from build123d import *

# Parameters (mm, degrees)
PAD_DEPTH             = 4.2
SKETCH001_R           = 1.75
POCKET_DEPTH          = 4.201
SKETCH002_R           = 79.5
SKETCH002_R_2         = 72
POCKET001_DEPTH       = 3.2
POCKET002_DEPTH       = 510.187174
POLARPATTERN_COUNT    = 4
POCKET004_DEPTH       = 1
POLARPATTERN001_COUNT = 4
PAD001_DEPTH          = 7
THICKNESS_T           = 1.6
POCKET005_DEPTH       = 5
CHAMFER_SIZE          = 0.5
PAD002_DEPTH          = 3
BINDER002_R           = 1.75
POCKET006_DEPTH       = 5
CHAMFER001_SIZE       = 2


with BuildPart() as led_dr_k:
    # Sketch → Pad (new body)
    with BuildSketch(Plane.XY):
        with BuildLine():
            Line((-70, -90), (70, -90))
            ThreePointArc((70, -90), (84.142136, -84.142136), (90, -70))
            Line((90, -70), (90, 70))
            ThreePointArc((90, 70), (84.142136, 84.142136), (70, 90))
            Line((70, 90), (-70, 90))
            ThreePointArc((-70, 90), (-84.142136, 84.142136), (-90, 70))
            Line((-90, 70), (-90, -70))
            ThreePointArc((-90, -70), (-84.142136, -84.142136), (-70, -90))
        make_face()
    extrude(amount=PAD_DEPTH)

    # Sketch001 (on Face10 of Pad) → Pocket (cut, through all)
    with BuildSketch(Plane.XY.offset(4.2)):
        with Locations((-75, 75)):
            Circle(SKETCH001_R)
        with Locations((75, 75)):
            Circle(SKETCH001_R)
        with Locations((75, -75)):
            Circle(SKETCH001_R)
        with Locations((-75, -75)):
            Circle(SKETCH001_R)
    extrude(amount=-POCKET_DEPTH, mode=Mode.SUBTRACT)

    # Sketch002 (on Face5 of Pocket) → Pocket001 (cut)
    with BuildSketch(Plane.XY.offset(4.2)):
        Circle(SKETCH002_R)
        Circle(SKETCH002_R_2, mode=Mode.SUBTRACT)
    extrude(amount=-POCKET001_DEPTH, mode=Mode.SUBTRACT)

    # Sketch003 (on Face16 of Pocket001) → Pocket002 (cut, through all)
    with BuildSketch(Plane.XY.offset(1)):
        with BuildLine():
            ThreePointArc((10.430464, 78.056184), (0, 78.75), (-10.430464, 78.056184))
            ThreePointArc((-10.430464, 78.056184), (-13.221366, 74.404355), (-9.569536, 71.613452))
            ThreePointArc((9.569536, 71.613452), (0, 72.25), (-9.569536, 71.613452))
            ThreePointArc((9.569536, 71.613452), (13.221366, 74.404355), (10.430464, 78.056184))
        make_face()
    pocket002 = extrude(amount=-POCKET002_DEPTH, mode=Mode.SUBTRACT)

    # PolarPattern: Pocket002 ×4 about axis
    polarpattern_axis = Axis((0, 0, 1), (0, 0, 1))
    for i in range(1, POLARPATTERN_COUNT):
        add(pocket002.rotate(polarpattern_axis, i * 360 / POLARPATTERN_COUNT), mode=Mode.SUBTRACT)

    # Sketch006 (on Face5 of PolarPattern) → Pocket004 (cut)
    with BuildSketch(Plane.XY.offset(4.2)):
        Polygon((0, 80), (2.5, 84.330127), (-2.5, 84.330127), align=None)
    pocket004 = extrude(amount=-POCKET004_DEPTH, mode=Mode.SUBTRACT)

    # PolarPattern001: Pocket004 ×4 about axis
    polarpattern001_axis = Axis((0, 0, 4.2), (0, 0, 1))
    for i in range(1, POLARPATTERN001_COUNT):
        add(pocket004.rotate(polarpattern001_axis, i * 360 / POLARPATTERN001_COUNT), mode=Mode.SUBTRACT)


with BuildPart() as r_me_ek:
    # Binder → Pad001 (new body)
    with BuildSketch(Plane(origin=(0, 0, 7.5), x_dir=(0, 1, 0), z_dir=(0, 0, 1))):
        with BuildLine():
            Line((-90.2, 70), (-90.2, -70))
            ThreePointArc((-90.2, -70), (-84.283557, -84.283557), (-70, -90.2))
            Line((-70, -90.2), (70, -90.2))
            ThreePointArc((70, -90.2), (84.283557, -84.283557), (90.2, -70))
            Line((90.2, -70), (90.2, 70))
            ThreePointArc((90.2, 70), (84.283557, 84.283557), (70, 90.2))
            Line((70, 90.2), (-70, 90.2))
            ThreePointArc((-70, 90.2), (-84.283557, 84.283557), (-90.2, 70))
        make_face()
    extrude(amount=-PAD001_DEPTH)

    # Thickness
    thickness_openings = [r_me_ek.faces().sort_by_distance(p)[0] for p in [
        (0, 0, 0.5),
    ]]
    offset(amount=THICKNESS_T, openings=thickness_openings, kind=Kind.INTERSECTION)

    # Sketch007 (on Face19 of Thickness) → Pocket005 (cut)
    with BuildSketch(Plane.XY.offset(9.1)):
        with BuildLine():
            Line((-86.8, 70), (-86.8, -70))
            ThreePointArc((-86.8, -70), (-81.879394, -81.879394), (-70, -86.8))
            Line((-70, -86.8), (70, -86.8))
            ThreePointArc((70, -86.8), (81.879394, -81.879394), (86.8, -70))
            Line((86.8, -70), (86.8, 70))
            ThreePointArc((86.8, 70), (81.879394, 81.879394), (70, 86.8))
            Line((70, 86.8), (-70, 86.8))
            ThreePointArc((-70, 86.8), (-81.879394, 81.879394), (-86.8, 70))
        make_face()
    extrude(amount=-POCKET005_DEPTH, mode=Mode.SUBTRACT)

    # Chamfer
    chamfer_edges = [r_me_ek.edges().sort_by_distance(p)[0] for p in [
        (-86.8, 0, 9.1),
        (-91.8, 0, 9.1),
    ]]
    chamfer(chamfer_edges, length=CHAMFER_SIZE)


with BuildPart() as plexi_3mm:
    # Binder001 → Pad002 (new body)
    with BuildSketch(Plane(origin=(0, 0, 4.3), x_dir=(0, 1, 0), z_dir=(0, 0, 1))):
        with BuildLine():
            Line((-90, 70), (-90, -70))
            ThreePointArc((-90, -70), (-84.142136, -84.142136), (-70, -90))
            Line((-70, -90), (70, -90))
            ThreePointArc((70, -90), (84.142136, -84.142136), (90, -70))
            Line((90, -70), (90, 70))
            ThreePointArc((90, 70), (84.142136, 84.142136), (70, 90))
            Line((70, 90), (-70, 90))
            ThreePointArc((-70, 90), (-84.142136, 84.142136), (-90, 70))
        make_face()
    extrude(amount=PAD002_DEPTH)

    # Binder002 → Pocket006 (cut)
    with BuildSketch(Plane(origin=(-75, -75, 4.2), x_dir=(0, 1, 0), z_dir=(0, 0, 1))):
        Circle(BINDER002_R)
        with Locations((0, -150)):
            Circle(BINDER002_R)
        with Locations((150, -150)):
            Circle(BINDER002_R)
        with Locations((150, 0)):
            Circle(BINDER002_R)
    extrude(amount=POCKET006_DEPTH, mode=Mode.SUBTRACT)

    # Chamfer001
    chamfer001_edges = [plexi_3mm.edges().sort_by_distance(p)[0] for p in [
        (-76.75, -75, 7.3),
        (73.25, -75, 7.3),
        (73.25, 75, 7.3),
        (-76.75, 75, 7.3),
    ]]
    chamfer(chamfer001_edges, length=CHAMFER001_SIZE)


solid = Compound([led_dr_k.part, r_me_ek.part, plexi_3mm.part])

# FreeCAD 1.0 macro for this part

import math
import FreeCAD as App
import Part
import Sketcher

V = App.Vector
Q = App.Units.Quantity


def edges_at(feature, points):
    """Names of the edges that pass closest to the given points."""
    edges = feature.Shape.Edges
    near = lambda p: min(range(len(edges)), key=lambda i: edges[i].distToShape(Part.Vertex(*p))[0])
    return sorted({f"Edge{near(p) + 1}" for p in points})


def faces_at(feature, points):
    """Names of the faces that lie closest to the given points."""
    faces = feature.Shape.Faces
    near = lambda p: min(range(len(faces)), key=lambda i: faces[i].distToShape(Part.Vertex(*p))[0])
    return sorted({f"Face{near(p) + 1}" for p in points})


def add_polygon(sketch, points):
    """Adds a closed chain of lines whose ends are joined by coincident constraints."""
    first, n = sketch.GeometryCount, len(points)
    for a, b in zip(points, points[1:] + points[:1]):
        sketch.addGeometry(Part.LineSegment(App.Vector(*a, 0), App.Vector(*b, 0)), False)
    for i in range(n):
        sketch.addConstraint(Sketcher.Constraint("Coincident", first + i, 2, first + (i + 1) % n, 1))

doc = App.newDocument("Part")
params = doc.addObject("Spreadsheet::Sheet", "Params")
for row, (alias, value) in enumerate([
    ("sketch1_radius", "19.999999 mm"),
    ("sketch1_width", "140 mm"),
    ("pad1_length", "4.2 mm"),
    ("sketch2_diameter", "3.5 mm"),
    ("sketch3_diameter", "159 mm"),
    ("sketch3_diameter2", "144 mm"),
    ("pocket2_length", "3.2 mm"),
    ("sketch4_radius", "3.25 mm"),
    ("sketch5_width", "5 mm"),
    ("pocket4_length", "1 mm"),
    ("sketch6_radius", "20.2 mm"),
    ("sketch6_width", "140 mm"),
    ("pad2_length", "7 mm"),
    ("thickness_wall", "1.6 mm"),
    ("sketch7_radius", "16.8 mm"),
    ("sketch7_width", "140 mm"),
    ("pocket5_length", "5 mm"),
    ("chamfer_size", "0.5 mm"),
    ("sketch8_radius", "19.999999 mm"),
    ("sketch8_width", "140 mm"),
    ("pad3_length", "3 mm"),
    ("sketch9_diameter", "3.5 mm"),
    ("pocket6_length", "5 mm"),
    ("chamfer2_size", "2 mm"),
], start=1):
    params.set(f"A{row}", alias)
    params.set(f"B{row}", "=" + value)
    params.setAlias(f"B{row}", alias)

body = doc.addObject("PartDesign::Body", "Body")

sketch1 = body.newObject("Sketcher::SketchObject", "Sketch")
sketch1.AttachmentSupport = (doc.getObject("XY_Plane"), [""])
sketch1.MapMode = "FlatFace"
sketch1.addGeometry(Part.LineSegment(V(-70, -90, 0), V(70, -90, 0)), False)
sketch1.addGeometry(Part.ArcOfCircle(Part.Circle(V(70, -70, 0), V(0, 0, 1), 20), math.radians(-90), math.radians(0)), False)
sketch1.addGeometry(Part.LineSegment(V(90, -70, 0), V(90, 70, 0)), False)
sketch1.addGeometry(Part.ArcOfCircle(Part.Circle(V(70, 70, 0), V(0, 0, 1), 20), math.radians(0), math.radians(90)), False)
sketch1.addGeometry(Part.LineSegment(V(70, 90, 0), V(-70, 90, 0)), False)
sketch1.addGeometry(Part.ArcOfCircle(Part.Circle(V(-70, 70, 0), V(0, 0, 1), 20), math.radians(90), math.radians(180)), False)
sketch1.addGeometry(Part.LineSegment(V(-90, 70, 0), V(-90, -70, 0)), False)
sketch1.addGeometry(Part.ArcOfCircle(Part.Circle(V(-70, -70, 0), V(0, 0, 1), 20), math.radians(180), math.radians(270)), False)
sketch1.addConstraint(Sketcher.Constraint("Tangent", 0, 2, 1, 1))
sketch1.addConstraint(Sketcher.Constraint("Tangent", 1, 2, 2, 1))
sketch1.addConstraint(Sketcher.Constraint("Tangent", 2, 2, 3, 1))
sketch1.addConstraint(Sketcher.Constraint("Tangent", 3, 2, 4, 1))
sketch1.addConstraint(Sketcher.Constraint("Tangent", 4, 2, 5, 1))
sketch1.addConstraint(Sketcher.Constraint("Tangent", 5, 2, 6, 1))
sketch1.addConstraint(Sketcher.Constraint("Tangent", 6, 2, 7, 1))
sketch1.addConstraint(Sketcher.Constraint("Tangent", 7, 2, 0, 1))
sketch1.addConstraint(Sketcher.Constraint("Horizontal", 0))
sketch1.addConstraint(Sketcher.Constraint("Vertical", 2))
sketch1.addConstraint(Sketcher.Constraint("Horizontal", 4))
sketch1.addConstraint(Sketcher.Constraint("Vertical", 6))
sketch1.addConstraint(Sketcher.Constraint("Equal", 1, 3))
sketch1.addConstraint(Sketcher.Constraint("Equal", 3, 5))
sketch1.addConstraint(Sketcher.Constraint("Equal", 5, 7))
sketch1.addConstraint(Sketcher.Constraint("Symmetric", 1, 3, 5, 3, -1, 1))
sketch1.addConstraint(Sketcher.Constraint("Equal", 4, 2))
sketch1.addConstraint(Sketcher.Constraint("Radius", 1, Q("19.999999 mm")))
sketch1.addConstraint(Sketcher.Constraint("DistanceX", 0, 1, 0, 2, Q("140 mm")))
sketch1.setExpression("Constraints[17]", "Params.sketch1_radius")
sketch1.setExpression("Constraints[18]", "Params.sketch1_width")
pad1 = body.newObject("PartDesign::Pad", "Pad")
pad1.Profile = sketch1
pad1.setExpression("Length", "Params.pad1_length")

sketch2 = body.newObject("Sketcher::SketchObject", "Sketch001")
sketch2.AttachmentSupport = (doc.getObject("XY_Plane"), [""])
sketch2.MapMode = "FlatFace"
sketch2.AttachmentOffset = App.Placement(V(0, 0, 4.2), App.Rotation())
sketch2.addGeometry(Part.Circle(V(-75, 75, 0), V(0, 0, 1), 1.8), False)
sketch2.addGeometry(Part.Circle(V(75, 75, 0), V(0, 0, 1), 1.8), False)
sketch2.addGeometry(Part.Circle(V(75, -75, 0), V(0, 0, 1), 1.8), False)
sketch2.addGeometry(Part.Circle(V(-75, -75, 0), V(0, 0, 1), 1.8), False)
sketch2.addConstraint(Sketcher.Constraint("Equal", 0, 1))
sketch2.addConstraint(Sketcher.Constraint("Equal", 1, 2))
sketch2.addConstraint(Sketcher.Constraint("Equal", 2, 3))
sketch2.addConstraint(Sketcher.Constraint("Symmetric", 0, 3, 2, 3, -1, 1))
sketch2.addConstraint(Sketcher.Constraint("Symmetric", 1, 3, 3, 3, -1, 1))
sketch2.addConstraint(Sketcher.Constraint("Symmetric", 0, 3, 1, 3, -2))
sketch2.addConstraint(Sketcher.Constraint("Diameter", 0, Q("3.5 mm")))
sketch2.addConstraint(Sketcher.Constraint("DistanceX", 0, 3, -1, 1, Q("75 mm")))
sketch2.addConstraint(Sketcher.Constraint("DistanceY", -1, 1, 0, 3, Q("75 mm")))
sketch2.setExpression("Constraints[6]", "Params.sketch2_diameter")
pocket1 = body.newObject("PartDesign::Pocket", "Pocket")
pocket1.Profile = sketch2
pocket1.Type = "ThroughAll"

sketch3 = body.newObject("Sketcher::SketchObject", "Sketch002")
sketch3.AttachmentSupport = (doc.getObject("XY_Plane"), [""])
sketch3.MapMode = "FlatFace"
sketch3.AttachmentOffset = App.Placement(V(0, 0, 4.2), App.Rotation())
sketch3.addGeometry(Part.Circle(V(0, 0, 0), V(0, 0, 1), 80), False)
sketch3.addGeometry(Part.Circle(V(0, 0, 0), V(0, 0, 1), 72), False)
sketch3.addConstraint(Sketcher.Constraint("Coincident", 0, 3, -1, 1))
sketch3.addConstraint(Sketcher.Constraint("Coincident", 1, 3, -1, 1))
sketch3.addConstraint(Sketcher.Constraint("Diameter", 0, Q("159 mm")))
sketch3.addConstraint(Sketcher.Constraint("Diameter", 1, Q("144 mm")))
sketch3.setExpression("Constraints[2]", "Params.sketch3_diameter")
sketch3.setExpression("Constraints[3]", "Params.sketch3_diameter2")
pocket2 = body.newObject("PartDesign::Pocket", "Pocket001")
pocket2.Profile = sketch3
pocket2.setExpression("Length", "Params.pocket2_length")

sketch4 = body.newObject("Sketcher::SketchObject", "Sketch003")
sketch4.AttachmentSupport = (doc.getObject("XY_Plane"), [""])
sketch4.MapMode = "FlatFace"
sketch4.AttachmentOffset = App.Placement(V(0, 0, 1), App.Rotation())
sketch4.addGeometry(Part.ArcOfCircle(Part.Circle(V(0, 0, 0), V(0, 0, 1), 78.7), math.radians(82.39), math.radians(97.61)), False)
sketch4.addGeometry(Part.ArcOfCircle(Part.Circle(V(-10, 74.8, 0), V(0, 0, 1), 3.2), math.radians(98), math.radians(278)), False)
sketch4.addGeometry(Part.ArcOfCircle(Part.Circle(V(0, 0, 0), V(0, 0, 1), 72.3), math.radians(82.39), math.radians(97.61)), False)
sketch4.addGeometry(Part.ArcOfCircle(Part.Circle(V(10, 74.8, 0), V(0, 0, 1), 3.2), math.radians(-98), math.radians(82)), False)
sketch4.addConstraint(Sketcher.Constraint("Tangent", 0, 2, 1, 1))
sketch4.addConstraint(Sketcher.Constraint("Tangent", 1, 2, 2, 2))
sketch4.addConstraint(Sketcher.Constraint("Tangent", 2, 1, 3, 1))
sketch4.addConstraint(Sketcher.Constraint("Tangent", 3, 2, 0, 1))
sketch4.addConstraint(Sketcher.Constraint("Equal", 1, 3))
sketch4.addConstraint(Sketcher.Constraint("Symmetric", 1, 3, 3, 3, -2))
sketch4.addConstraint(Sketcher.Constraint("Radius", 1, Q("3.25 mm")))
sketch4.addConstraint(Sketcher.Constraint("DistanceX", 1, 3, -1, 1, Q("10 mm")))
sketch4.addConstraint(Sketcher.Constraint("Radius", 2, Q("72.250021 mm")))
sketch4.addConstraint(Sketcher.Constraint("Radius", 0, Q("78.749957 mm")))
sketch4.addConstraint(Sketcher.Constraint("DistanceY", -1, 1, 1, 3, Q("74.834818 mm")))
sketch4.setExpression("Constraints[6]", "Params.sketch4_radius")
pocket3 = body.newObject("PartDesign::Pocket", "Pocket002")
pocket3.Profile = sketch4
pocket3.Type = "ThroughAll"
doc.recompute()

polarpattern = body.newObject("PartDesign::PolarPattern", "PolarPattern")
polarpattern.Originals = [pocket3]
polarpattern.Axis = (doc.getObject("Z_Axis"), [""])
polarpattern.Angle = 360
polarpattern.Occurrences = 4
body.Tip = polarpattern

sketch5 = body.newObject("Sketcher::SketchObject", "Sketch004")
sketch5.AttachmentSupport = (doc.getObject("XY_Plane"), [""])
sketch5.MapMode = "FlatFace"
sketch5.AttachmentOffset = App.Placement(V(0, 0, 4.2), App.Rotation())
add_polygon(sketch5, [(0, 80), (2.5, 84.3), (-2.5, 84.3)])
sketch5.addConstraint(Sketcher.Constraint("Horizontal", 1))
sketch5.addConstraint(Sketcher.Constraint("PointOnObject", 2, 2, -2))
sketch5.addConstraint(Sketcher.Constraint("Equal", 0, 2))
sketch5.addConstraint(Sketcher.Constraint("DistanceX", 1, 2, 1, 1, Q("5 mm")))
sketch5.addConstraint(Sketcher.Constraint("Angle", 0, Q("60 deg")))
sketch5.addConstraint(Sketcher.Constraint("DistanceY", -1, 1, 2, 2, Q("80 mm")))
sketch5.setExpression("Constraints[6]", "Params.sketch5_width")
pocket4 = body.newObject("PartDesign::Pocket", "Pocket003")
pocket4.Profile = sketch5
pocket4.setExpression("Length", "Params.pocket4_length")
doc.recompute()

polarpattern2 = body.newObject("PartDesign::PolarPattern", "PolarPattern001")
polarpattern2.Originals = [pocket4]
polarpattern2.Axis = (doc.getObject("Z_Axis"), [""])
polarpattern2.Angle = 360
polarpattern2.Occurrences = 4
body.Tip = polarpattern2
body2 = doc.addObject("PartDesign::Body", "Body001")

sketch6 = body2.newObject("Sketcher::SketchObject", "Sketch005")
sketch6.AttachmentSupport = (doc.getObject("XY_Plane001"), [""])
sketch6.MapMode = "FlatFace"
sketch6.AttachmentOffset = App.Placement(V(0, 0, 7.5), App.Rotation())
sketch6.addGeometry(Part.LineSegment(V(-70, -90, 0), V(70, -90, 0)), False)
sketch6.addGeometry(Part.ArcOfCircle(Part.Circle(V(70, -70, 0), V(0, 0, 1), 20), math.radians(-90), math.radians(0)), False)
sketch6.addGeometry(Part.LineSegment(V(90, -70, 0), V(90, 70, 0)), False)
sketch6.addGeometry(Part.ArcOfCircle(Part.Circle(V(70, 70, 0), V(0, 0, 1), 20), math.radians(0), math.radians(90)), False)
sketch6.addGeometry(Part.LineSegment(V(70, 90, 0), V(-70, 90, 0)), False)
sketch6.addGeometry(Part.ArcOfCircle(Part.Circle(V(-70, 70, 0), V(0, 0, 1), 20), math.radians(90), math.radians(180)), False)
sketch6.addGeometry(Part.LineSegment(V(-90, 70, 0), V(-90, -70, 0)), False)
sketch6.addGeometry(Part.ArcOfCircle(Part.Circle(V(-70, -70, 0), V(0, 0, 1), 20), math.radians(180), math.radians(270)), False)
sketch6.addConstraint(Sketcher.Constraint("Tangent", 0, 2, 1, 1))
sketch6.addConstraint(Sketcher.Constraint("Tangent", 1, 2, 2, 1))
sketch6.addConstraint(Sketcher.Constraint("Tangent", 2, 2, 3, 1))
sketch6.addConstraint(Sketcher.Constraint("Tangent", 3, 2, 4, 1))
sketch6.addConstraint(Sketcher.Constraint("Tangent", 4, 2, 5, 1))
sketch6.addConstraint(Sketcher.Constraint("Tangent", 5, 2, 6, 1))
sketch6.addConstraint(Sketcher.Constraint("Tangent", 6, 2, 7, 1))
sketch6.addConstraint(Sketcher.Constraint("Tangent", 7, 2, 0, 1))
sketch6.addConstraint(Sketcher.Constraint("Horizontal", 0))
sketch6.addConstraint(Sketcher.Constraint("Vertical", 2))
sketch6.addConstraint(Sketcher.Constraint("Horizontal", 4))
sketch6.addConstraint(Sketcher.Constraint("Vertical", 6))
sketch6.addConstraint(Sketcher.Constraint("Equal", 1, 3))
sketch6.addConstraint(Sketcher.Constraint("Equal", 3, 5))
sketch6.addConstraint(Sketcher.Constraint("Equal", 5, 7))
sketch6.addConstraint(Sketcher.Constraint("Symmetric", 1, 3, 5, 3, -1, 1))
sketch6.addConstraint(Sketcher.Constraint("Equal", 4, 2))
sketch6.addConstraint(Sketcher.Constraint("Radius", 1, Q("20.2 mm")))
sketch6.addConstraint(Sketcher.Constraint("DistanceX", 0, 1, 0, 2, Q("140 mm")))
sketch6.setExpression("Constraints[17]", "Params.sketch6_radius")
sketch6.setExpression("Constraints[18]", "Params.sketch6_width")
pad2 = body2.newObject("PartDesign::Pad", "Pad001")
pad2.Profile = sketch6
pad2.setExpression("Length", "Params.pad2_length")
pad2.Reversed = True
doc.recompute()

thickness = body2.newObject("PartDesign::Thickness", "Thickness")
thickness.Base = (pad2, faces_at(pad2, [(0, 0, 0.5)]))
thickness.setExpression("Value", "Params.thickness_wall")
thickness.Reversed = False
thickness.Join = "Intersection"

sketch7 = body2.newObject("Sketcher::SketchObject", "Sketch006")
sketch7.AttachmentSupport = (doc.getObject("XY_Plane001"), [""])
sketch7.MapMode = "FlatFace"
sketch7.AttachmentOffset = App.Placement(V(0, 0, 9.1), App.Rotation())
sketch7.addGeometry(Part.LineSegment(V(-87, 70, 0), V(-87, -70, 0)), False)
sketch7.addGeometry(Part.ArcOfCircle(Part.Circle(V(-70, -70, 0), V(0, 0, 1), 17), math.radians(180), math.radians(270)), False)
sketch7.addGeometry(Part.LineSegment(V(-70, -87, 0), V(70, -87, 0)), False)
sketch7.addGeometry(Part.ArcOfCircle(Part.Circle(V(70, -70, 0), V(0, 0, 1), 17), math.radians(-90), math.radians(0)), False)
sketch7.addGeometry(Part.LineSegment(V(87, -70, 0), V(87, 70, 0)), False)
sketch7.addGeometry(Part.ArcOfCircle(Part.Circle(V(70, 70, 0), V(0, 0, 1), 17), math.radians(0), math.radians(90)), False)
sketch7.addGeometry(Part.LineSegment(V(70, 87, 0), V(-70, 87, 0)), False)
sketch7.addGeometry(Part.ArcOfCircle(Part.Circle(V(-70, 70, 0), V(0, 0, 1), 17), math.radians(90), math.radians(180)), False)
sketch7.addConstraint(Sketcher.Constraint("Tangent", 0, 2, 1, 1))
sketch7.addConstraint(Sketcher.Constraint("Tangent", 1, 2, 2, 1))
sketch7.addConstraint(Sketcher.Constraint("Tangent", 2, 2, 3, 1))
sketch7.addConstraint(Sketcher.Constraint("Tangent", 3, 2, 4, 1))
sketch7.addConstraint(Sketcher.Constraint("Tangent", 4, 2, 5, 1))
sketch7.addConstraint(Sketcher.Constraint("Tangent", 5, 2, 6, 1))
sketch7.addConstraint(Sketcher.Constraint("Tangent", 6, 2, 7, 1))
sketch7.addConstraint(Sketcher.Constraint("Tangent", 7, 2, 0, 1))
sketch7.addConstraint(Sketcher.Constraint("Vertical", 0))
sketch7.addConstraint(Sketcher.Constraint("Horizontal", 2))
sketch7.addConstraint(Sketcher.Constraint("Vertical", 4))
sketch7.addConstraint(Sketcher.Constraint("Horizontal", 6))
sketch7.addConstraint(Sketcher.Constraint("Equal", 1, 3))
sketch7.addConstraint(Sketcher.Constraint("Equal", 3, 5))
sketch7.addConstraint(Sketcher.Constraint("Equal", 5, 7))
sketch7.addConstraint(Sketcher.Constraint("Symmetric", 1, 3, 5, 3, -1, 1))
sketch7.addConstraint(Sketcher.Constraint("Equal", 6, 0))
sketch7.addConstraint(Sketcher.Constraint("Radius", 1, Q("16.8 mm")))
sketch7.addConstraint(Sketcher.Constraint("DistanceX", 2, 1, 2, 2, Q("140 mm")))
sketch7.setExpression("Constraints[17]", "Params.sketch7_radius")
sketch7.setExpression("Constraints[18]", "Params.sketch7_width")
pocket5 = body2.newObject("PartDesign::Pocket", "Pocket004")
pocket5.Profile = sketch7
pocket5.setExpression("Length", "Params.pocket5_length")
doc.recompute()

chamfer = body2.newObject("PartDesign::Chamfer", "Chamfer")
chamfer.Base = (pocket5, edges_at(pocket5, [(-86.8, 0, 9.1), (-91.8, 0, 9.1)]))
chamfer.setExpression("Size", "Params.chamfer_size")
body3 = doc.addObject("PartDesign::Body", "Body002")

sketch8 = body3.newObject("Sketcher::SketchObject", "Sketch007")
sketch8.AttachmentSupport = (doc.getObject("XY_Plane002"), [""])
sketch8.MapMode = "FlatFace"
sketch8.AttachmentOffset = App.Placement(V(0, 0, 4.3), App.Rotation())
sketch8.addGeometry(Part.LineSegment(V(-70, -90, 0), V(70, -90, 0)), False)
sketch8.addGeometry(Part.ArcOfCircle(Part.Circle(V(70, -70, 0), V(0, 0, 1), 20), math.radians(-90), math.radians(0)), False)
sketch8.addGeometry(Part.LineSegment(V(90, -70, 0), V(90, 70, 0)), False)
sketch8.addGeometry(Part.ArcOfCircle(Part.Circle(V(70, 70, 0), V(0, 0, 1), 20), math.radians(0), math.radians(90)), False)
sketch8.addGeometry(Part.LineSegment(V(70, 90, 0), V(-70, 90, 0)), False)
sketch8.addGeometry(Part.ArcOfCircle(Part.Circle(V(-70, 70, 0), V(0, 0, 1), 20), math.radians(90), math.radians(180)), False)
sketch8.addGeometry(Part.LineSegment(V(-90, 70, 0), V(-90, -70, 0)), False)
sketch8.addGeometry(Part.ArcOfCircle(Part.Circle(V(-70, -70, 0), V(0, 0, 1), 20), math.radians(180), math.radians(270)), False)
sketch8.addConstraint(Sketcher.Constraint("Tangent", 0, 2, 1, 1))
sketch8.addConstraint(Sketcher.Constraint("Tangent", 1, 2, 2, 1))
sketch8.addConstraint(Sketcher.Constraint("Tangent", 2, 2, 3, 1))
sketch8.addConstraint(Sketcher.Constraint("Tangent", 3, 2, 4, 1))
sketch8.addConstraint(Sketcher.Constraint("Tangent", 4, 2, 5, 1))
sketch8.addConstraint(Sketcher.Constraint("Tangent", 5, 2, 6, 1))
sketch8.addConstraint(Sketcher.Constraint("Tangent", 6, 2, 7, 1))
sketch8.addConstraint(Sketcher.Constraint("Tangent", 7, 2, 0, 1))
sketch8.addConstraint(Sketcher.Constraint("Horizontal", 0))
sketch8.addConstraint(Sketcher.Constraint("Vertical", 2))
sketch8.addConstraint(Sketcher.Constraint("Horizontal", 4))
sketch8.addConstraint(Sketcher.Constraint("Vertical", 6))
sketch8.addConstraint(Sketcher.Constraint("Equal", 1, 3))
sketch8.addConstraint(Sketcher.Constraint("Equal", 3, 5))
sketch8.addConstraint(Sketcher.Constraint("Equal", 5, 7))
sketch8.addConstraint(Sketcher.Constraint("Symmetric", 1, 3, 5, 3, -1, 1))
sketch8.addConstraint(Sketcher.Constraint("Equal", 4, 2))
sketch8.addConstraint(Sketcher.Constraint("Radius", 1, Q("19.999999 mm")))
sketch8.addConstraint(Sketcher.Constraint("DistanceX", 0, 1, 0, 2, Q("140 mm")))
sketch8.setExpression("Constraints[17]", "Params.sketch8_radius")
sketch8.setExpression("Constraints[18]", "Params.sketch8_width")
pad3 = body3.newObject("PartDesign::Pad", "Pad002")
pad3.Profile = sketch8
pad3.setExpression("Length", "Params.pad3_length")

sketch9 = body3.newObject("Sketcher::SketchObject", "Sketch008")
sketch9.AttachmentSupport = (doc.getObject("XY_Plane002"), [""])
sketch9.MapMode = "FlatFace"
sketch9.AttachmentOffset = App.Placement(V(0, 0, 4.2), App.Rotation())
sketch9.addGeometry(Part.Circle(V(-75, -75, 0), V(0, 0, 1), 1.8), False)
sketch9.addGeometry(Part.Circle(V(75, -75, 0), V(0, 0, 1), 1.8), False)
sketch9.addGeometry(Part.Circle(V(75, 75, 0), V(0, 0, 1), 1.8), False)
sketch9.addGeometry(Part.Circle(V(-75, 75, 0), V(0, 0, 1), 1.8), False)
sketch9.addConstraint(Sketcher.Constraint("Equal", 0, 1))
sketch9.addConstraint(Sketcher.Constraint("Equal", 1, 2))
sketch9.addConstraint(Sketcher.Constraint("Equal", 2, 3))
sketch9.addConstraint(Sketcher.Constraint("Symmetric", 0, 3, 2, 3, -1, 1))
sketch9.addConstraint(Sketcher.Constraint("Symmetric", 1, 3, 3, 3, -1, 1))
sketch9.addConstraint(Sketcher.Constraint("Symmetric", 0, 3, 1, 3, -2))
sketch9.addConstraint(Sketcher.Constraint("Diameter", 0, Q("3.5 mm")))
sketch9.addConstraint(Sketcher.Constraint("DistanceX", 0, 3, -1, 1, Q("75 mm")))
sketch9.addConstraint(Sketcher.Constraint("DistanceY", 0, 3, -1, 1, Q("75 mm")))
sketch9.setExpression("Constraints[6]", "Params.sketch9_diameter")
pocket6 = body3.newObject("PartDesign::Pocket", "Pocket005")
pocket6.Profile = sketch9
pocket6.setExpression("Length", "Params.pocket6_length")
pocket6.Reversed = True
doc.recompute()

chamfer2 = body3.newObject("PartDesign::Chamfer", "Chamfer001")
chamfer2.Base = (pocket6, edges_at(pocket6, [
    (-75, -76.75, 7.3),
    (75, -76.75, 7.3),
    (75, 73.25, 7.3),
    (-75, 73.25, 7.3),
]))
chamfer2.setExpression("Size", "Params.chamfer2_size")

doc.recompute()
